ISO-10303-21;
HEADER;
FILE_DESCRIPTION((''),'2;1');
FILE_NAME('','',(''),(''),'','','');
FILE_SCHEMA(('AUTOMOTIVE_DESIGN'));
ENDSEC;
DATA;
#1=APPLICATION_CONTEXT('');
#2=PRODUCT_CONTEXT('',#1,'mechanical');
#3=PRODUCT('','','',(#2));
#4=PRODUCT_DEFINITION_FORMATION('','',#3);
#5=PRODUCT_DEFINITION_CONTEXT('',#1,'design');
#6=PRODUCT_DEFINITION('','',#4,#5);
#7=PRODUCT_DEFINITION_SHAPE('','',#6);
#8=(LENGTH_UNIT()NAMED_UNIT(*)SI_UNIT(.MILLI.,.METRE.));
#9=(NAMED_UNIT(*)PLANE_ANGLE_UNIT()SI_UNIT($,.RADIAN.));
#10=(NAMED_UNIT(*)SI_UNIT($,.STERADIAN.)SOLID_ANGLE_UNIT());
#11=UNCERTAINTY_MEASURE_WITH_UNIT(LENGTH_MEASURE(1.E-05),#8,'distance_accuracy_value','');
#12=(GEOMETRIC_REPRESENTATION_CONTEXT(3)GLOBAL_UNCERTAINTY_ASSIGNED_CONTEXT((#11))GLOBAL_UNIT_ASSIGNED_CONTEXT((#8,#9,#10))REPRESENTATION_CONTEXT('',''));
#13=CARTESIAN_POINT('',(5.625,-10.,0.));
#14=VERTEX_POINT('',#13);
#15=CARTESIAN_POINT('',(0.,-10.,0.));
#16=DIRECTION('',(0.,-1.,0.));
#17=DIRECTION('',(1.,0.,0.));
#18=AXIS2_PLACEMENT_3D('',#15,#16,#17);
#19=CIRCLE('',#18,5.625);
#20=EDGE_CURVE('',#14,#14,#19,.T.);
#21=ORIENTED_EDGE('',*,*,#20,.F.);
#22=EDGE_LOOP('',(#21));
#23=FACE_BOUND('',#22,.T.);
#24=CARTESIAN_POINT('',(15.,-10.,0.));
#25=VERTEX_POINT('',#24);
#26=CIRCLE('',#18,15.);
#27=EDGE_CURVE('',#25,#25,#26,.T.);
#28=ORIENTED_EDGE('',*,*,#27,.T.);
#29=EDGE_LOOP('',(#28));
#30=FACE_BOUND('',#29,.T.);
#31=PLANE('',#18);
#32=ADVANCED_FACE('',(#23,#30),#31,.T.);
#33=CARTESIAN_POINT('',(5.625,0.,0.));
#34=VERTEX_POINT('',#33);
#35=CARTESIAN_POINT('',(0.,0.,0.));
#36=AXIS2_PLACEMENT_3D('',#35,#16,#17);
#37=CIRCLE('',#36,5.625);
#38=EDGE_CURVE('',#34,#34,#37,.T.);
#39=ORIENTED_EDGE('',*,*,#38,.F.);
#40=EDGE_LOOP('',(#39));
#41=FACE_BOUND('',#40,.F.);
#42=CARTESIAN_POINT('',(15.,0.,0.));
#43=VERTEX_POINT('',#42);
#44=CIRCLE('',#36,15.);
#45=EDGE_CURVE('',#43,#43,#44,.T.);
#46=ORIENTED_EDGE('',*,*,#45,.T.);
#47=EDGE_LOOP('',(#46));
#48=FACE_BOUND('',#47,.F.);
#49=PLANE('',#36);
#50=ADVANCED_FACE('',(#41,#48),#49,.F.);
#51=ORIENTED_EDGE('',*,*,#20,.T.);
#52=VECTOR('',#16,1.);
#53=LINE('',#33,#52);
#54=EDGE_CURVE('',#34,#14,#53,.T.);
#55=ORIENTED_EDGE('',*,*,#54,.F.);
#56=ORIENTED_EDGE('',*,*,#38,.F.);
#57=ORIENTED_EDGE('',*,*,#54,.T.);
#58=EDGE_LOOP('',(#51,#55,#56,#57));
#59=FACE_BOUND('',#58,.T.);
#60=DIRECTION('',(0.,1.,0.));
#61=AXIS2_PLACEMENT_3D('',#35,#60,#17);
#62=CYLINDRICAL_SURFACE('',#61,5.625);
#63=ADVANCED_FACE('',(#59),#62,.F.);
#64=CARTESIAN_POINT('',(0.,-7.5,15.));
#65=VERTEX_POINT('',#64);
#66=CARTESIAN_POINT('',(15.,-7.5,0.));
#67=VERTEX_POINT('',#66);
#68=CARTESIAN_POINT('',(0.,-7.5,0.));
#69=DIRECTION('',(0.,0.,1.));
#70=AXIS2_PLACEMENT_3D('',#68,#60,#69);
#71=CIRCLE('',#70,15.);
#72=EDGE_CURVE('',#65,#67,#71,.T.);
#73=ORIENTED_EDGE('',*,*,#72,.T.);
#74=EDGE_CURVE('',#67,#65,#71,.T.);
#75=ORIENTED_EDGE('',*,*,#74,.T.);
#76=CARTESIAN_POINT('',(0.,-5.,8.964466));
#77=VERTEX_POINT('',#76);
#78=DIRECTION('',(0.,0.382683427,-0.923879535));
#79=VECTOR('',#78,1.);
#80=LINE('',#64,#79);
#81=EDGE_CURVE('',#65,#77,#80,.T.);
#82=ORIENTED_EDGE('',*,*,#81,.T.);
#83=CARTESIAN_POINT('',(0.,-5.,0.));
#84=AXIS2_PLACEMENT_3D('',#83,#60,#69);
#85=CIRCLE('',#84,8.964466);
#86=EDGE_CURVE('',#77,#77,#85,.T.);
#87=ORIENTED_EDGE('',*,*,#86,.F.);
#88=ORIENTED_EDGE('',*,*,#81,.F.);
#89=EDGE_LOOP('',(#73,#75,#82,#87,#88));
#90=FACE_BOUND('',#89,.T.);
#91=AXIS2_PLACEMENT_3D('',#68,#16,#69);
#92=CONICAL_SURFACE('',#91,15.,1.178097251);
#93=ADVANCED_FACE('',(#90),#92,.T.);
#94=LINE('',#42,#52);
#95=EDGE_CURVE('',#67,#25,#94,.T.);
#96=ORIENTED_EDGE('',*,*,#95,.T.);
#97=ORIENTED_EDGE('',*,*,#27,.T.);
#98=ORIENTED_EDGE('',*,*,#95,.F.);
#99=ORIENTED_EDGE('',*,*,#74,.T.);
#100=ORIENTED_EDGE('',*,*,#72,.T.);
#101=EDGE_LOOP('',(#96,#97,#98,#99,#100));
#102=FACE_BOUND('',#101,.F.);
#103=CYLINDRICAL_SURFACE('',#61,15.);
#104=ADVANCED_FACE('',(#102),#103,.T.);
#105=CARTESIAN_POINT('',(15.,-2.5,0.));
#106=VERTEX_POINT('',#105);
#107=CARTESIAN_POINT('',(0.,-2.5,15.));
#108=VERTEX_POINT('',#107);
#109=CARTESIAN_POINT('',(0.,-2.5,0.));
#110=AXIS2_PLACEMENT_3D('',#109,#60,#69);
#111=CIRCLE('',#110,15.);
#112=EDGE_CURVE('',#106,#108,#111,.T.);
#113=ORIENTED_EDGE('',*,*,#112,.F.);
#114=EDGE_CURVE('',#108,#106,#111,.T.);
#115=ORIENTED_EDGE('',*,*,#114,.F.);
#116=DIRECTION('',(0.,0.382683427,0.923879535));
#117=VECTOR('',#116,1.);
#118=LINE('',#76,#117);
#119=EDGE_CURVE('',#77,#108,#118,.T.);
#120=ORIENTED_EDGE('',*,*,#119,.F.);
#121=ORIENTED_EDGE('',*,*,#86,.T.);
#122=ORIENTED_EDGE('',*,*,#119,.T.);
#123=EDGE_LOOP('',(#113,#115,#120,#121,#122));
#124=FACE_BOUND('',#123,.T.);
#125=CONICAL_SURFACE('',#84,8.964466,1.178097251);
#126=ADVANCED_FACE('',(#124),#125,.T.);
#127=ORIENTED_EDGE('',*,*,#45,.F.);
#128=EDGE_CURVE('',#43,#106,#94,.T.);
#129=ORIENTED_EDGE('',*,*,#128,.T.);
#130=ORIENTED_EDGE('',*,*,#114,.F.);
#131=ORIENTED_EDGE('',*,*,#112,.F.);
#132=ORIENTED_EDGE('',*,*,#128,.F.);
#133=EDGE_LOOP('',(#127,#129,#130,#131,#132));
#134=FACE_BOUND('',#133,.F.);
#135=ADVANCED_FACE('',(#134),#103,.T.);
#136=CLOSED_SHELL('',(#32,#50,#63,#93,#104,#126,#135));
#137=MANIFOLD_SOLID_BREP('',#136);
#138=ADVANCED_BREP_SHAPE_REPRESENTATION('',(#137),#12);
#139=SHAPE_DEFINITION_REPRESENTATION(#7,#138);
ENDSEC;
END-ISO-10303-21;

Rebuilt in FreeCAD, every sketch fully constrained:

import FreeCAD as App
import Part
import Sketcher

V = App.Vector
Q = App.Units.Quantity


def add_polygon(sketch, points):
    """Adds a closed chain of lines whose ends are joined by coincident constraints."""
    first, n = sketch.GeometryCount, len(points)
    for a, b in zip(points, points[1:] + points[:1]):
        sketch.addGeometry(Part.LineSegment(App.Vector(*a, 0), App.Vector(*b, 0)), False)
    for i in range(n):
        sketch.addConstraint(Sketcher.Constraint("Coincident", first + i, 2, first + (i + 1) % n, 1))

doc = App.newDocument("Part")
body = doc.addObject("PartDesign::Body", "Body")

# Sketch on XZ plane
sketch1 = doc.addObject("Sketcher::SketchObject", "Sketch")
body.addObject(sketch1)
sketch1.AttachmentSupport = (doc.XZ_Plane, [""])
sketch1.MapMode = "FlatFace"
sketch1.addGeometry([
    Part.Circle(V(0, 0, 0), V(0, 0, 1), 15),
    Part.Circle(V(0, 0, 0), V(0, 0, 1), 6),
], False)
sketch1.addConstraint([
    Sketcher.Constraint("Coincident", 0, 3, -1, 1),
    Sketcher.Constraint("Coincident", 1, 3, -1, 1),
    Sketcher.Constraint("Diameter", 0, 30.0),
    Sketcher.Constraint("Diameter", 1, 11.25),
])
pad1 = doc.addObject("PartDesign::Pad", "Pad")
body.addObject(pad1)
pad1.Profile = sketch1
pad1.Length = 10

# Sketch on YZ plane
sketch2 = doc.addObject("Sketcher::SketchObject", "Sketch001")
body.addObject(sketch2)
sketch2.AttachmentSupport = (doc.YZ_Plane, [""])
sketch2.MapMode = "FlatFace"
add_polygon(sketch2, [(-2, 15), (-8, 15), (-5, 9)])  # lines 0-2
sketch2.addConstraint([
    Sketcher.Constraint("Horizontal", 0),
    Sketcher.Constraint("Equal", 1, 2),
    Sketcher.Constraint("DistanceX", 0, 2, 0, 1, 5.0),
    Sketcher.Constraint("DistanceY", -1, 1, 0, 2, 15.0),
    Sketcher.Constraint("DistanceX", 1, 2, -1, 1, 5.0),
    Sketcher.Constraint("Angle", 1, Q("-67.5 deg")),
])
groove = doc.addObject("PartDesign::Groove", "Groove")
body.addObject(groove)
groove.Profile = sketch2
groove.ReferenceAxis = (sketch2, ["H_Axis"])
groove.Angle = 360

doc.recompute()
